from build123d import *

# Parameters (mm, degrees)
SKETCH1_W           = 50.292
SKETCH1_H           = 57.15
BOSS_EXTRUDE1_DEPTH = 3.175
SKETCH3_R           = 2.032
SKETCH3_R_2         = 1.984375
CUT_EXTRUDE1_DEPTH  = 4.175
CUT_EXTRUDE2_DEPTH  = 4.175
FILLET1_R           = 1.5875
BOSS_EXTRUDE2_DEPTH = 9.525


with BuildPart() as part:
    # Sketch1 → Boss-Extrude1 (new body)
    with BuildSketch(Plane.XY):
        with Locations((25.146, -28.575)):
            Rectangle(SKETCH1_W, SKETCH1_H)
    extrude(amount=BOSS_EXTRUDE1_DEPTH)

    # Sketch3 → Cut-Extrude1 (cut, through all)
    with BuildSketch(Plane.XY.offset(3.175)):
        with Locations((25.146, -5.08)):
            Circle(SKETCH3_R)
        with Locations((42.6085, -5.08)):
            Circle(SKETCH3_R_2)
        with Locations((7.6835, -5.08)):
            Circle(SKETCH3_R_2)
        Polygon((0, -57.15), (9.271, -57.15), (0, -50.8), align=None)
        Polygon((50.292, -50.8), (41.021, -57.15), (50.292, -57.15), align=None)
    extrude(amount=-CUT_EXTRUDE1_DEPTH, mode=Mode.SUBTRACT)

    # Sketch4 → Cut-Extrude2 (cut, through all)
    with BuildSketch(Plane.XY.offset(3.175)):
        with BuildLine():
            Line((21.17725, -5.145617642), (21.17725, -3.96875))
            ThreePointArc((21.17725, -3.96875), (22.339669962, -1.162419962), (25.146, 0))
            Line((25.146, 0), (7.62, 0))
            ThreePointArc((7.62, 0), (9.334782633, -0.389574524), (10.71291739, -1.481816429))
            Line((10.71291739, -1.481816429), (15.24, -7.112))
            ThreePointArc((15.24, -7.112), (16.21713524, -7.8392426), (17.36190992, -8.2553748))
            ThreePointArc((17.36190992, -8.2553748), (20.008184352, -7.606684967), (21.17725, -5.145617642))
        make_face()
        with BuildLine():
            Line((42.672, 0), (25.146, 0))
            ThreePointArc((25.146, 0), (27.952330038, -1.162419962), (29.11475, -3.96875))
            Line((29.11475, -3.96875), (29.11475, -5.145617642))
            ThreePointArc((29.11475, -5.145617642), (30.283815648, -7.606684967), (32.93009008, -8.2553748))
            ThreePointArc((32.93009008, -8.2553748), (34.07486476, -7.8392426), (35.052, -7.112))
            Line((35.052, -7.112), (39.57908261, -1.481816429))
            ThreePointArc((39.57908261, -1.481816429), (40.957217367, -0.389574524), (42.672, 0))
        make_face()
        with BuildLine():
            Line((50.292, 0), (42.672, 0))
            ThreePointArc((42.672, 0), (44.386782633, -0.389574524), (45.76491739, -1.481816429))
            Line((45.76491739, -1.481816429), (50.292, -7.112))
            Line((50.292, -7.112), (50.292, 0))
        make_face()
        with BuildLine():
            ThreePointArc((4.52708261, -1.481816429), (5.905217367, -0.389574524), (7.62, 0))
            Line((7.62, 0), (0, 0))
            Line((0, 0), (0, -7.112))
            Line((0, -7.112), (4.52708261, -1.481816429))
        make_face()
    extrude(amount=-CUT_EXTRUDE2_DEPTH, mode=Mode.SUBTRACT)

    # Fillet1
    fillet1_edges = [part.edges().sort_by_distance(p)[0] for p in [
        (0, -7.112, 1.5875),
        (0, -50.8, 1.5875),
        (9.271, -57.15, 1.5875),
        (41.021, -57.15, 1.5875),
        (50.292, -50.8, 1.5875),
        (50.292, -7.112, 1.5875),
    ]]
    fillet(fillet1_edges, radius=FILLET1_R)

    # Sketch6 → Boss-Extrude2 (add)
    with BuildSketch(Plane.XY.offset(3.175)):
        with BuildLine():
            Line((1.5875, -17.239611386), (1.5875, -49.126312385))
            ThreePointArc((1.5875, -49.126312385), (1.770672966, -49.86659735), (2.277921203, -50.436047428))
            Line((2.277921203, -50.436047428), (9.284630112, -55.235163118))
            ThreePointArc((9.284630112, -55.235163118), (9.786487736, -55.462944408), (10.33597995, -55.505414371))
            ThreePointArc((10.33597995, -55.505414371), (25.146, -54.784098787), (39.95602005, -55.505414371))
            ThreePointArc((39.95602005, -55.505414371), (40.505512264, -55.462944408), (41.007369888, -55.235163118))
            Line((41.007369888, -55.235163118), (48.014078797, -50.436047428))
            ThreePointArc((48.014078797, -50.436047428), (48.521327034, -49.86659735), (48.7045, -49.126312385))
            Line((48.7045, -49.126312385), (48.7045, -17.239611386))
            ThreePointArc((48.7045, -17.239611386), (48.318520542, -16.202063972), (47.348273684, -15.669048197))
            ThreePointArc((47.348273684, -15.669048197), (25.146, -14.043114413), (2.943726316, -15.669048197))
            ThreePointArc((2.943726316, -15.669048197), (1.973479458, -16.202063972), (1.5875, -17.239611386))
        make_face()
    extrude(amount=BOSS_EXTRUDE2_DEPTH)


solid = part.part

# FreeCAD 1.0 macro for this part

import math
import FreeCAD as App
import Part
import Sketcher
from FreeCAD import Vector
Q = App.Units.Quantity


def edges_at(feature, points):
    """Names of the edges that pass closest to the given points."""
    edges = feature.Shape.Edges
    near = lambda p: min(range(len(edges)), key=lambda i: edges[i].distToShape(Part.Vertex(*p))[0])
    return sorted({f"Edge{near(p) + 1}" for p in points})

doc = App.newDocument("Part")
body = doc.addObject("PartDesign::Body", "Body")

# Sketch on XY plane
sketch1 = doc.addObject("Sketcher::SketchObject", "Sketch")
body.addObject(sketch1)
sketch1.AttachmentSupport = (doc.XY_Plane, [""])
sketch1.MapMode = "FlatFace"
sketch1.addGeometry([
    Part.LineSegment(Vector(0, 0, 0), Vector(0, -57, 0)),
    Part.LineSegment(Vector(0, -57, 0), Vector(50, -57, 0)),
    Part.LineSegment(Vector(50, -57, 0), Vector(50, 0, 0)),
    Part.LineSegment(Vector(50, 0, 0), Vector(0, 0, 0)),
], False)
sketch1.addConstraint([
    Sketcher.Constraint("Coincident", 0, 2, 1, 1),
    Sketcher.Constraint("Coincident", 1, 2, 2, 1),
    Sketcher.Constraint("Coincident", 2, 2, 3, 1),
    Sketcher.Constraint("Coincident", 3, 2, 0, 1),
    Sketcher.Constraint("Vertical", 0),
    Sketcher.Constraint("Horizontal", 1),
    Sketcher.Constraint("Vertical", 2),
    Sketcher.Constraint("Horizontal", 3),
    Sketcher.Constraint("Coincident", 3, 2, -1, 1),
    Sketcher.Constraint("DistanceX", 1, 1, 1, 2, Q("1.98 in")),
    Sketcher.Constraint("DistanceY", 0, 2, 0, 1, Q("2.25 in")),
])
pad1 = doc.addObject("PartDesign::Pad", "Pad")
body.addObject(pad1)
pad1.Profile = sketch1
pad1.Length = Q("0.125 in")

# Sketch on XY plane
sketch2 = doc.addObject("Sketcher::SketchObject", "Sketch001")
body.addObject(sketch2)
sketch2.AttachmentSupport = (doc.XY_Plane, [""])
sketch2.MapMode = "FlatFace"
sketch2.AttachmentOffset = App.Placement(Vector(0, 0, 0.125 * 25.4), App.Rotation())
sketch2.addGeometry([
    Part.Circle(Vector(25.1, -5.1, 0), Vector(0, 0, 1), 2),  # 0
    Part.Circle(Vector(42.6, -5.1, 0), Vector(0, 0, 1), 2),  # 1
    Part.Circle(Vector(7.7, -5.1, 0), Vector(0, 0, 1), 2),  # 2
    Part.LineSegment(Vector(0, -57.1, 0), Vector(9.3, -57.1, 0)),  # 3
    Part.LineSegment(Vector(9.3, -57.1, 0), Vector(0, -50.8, 0)),  # 4
    Part.LineSegment(Vector(0, -50.8, 0), Vector(0, -57.1, 0)),  # 5
    Part.LineSegment(Vector(50.3, -50.8, 0), Vector(41, -57.1, 0)),  # 6
    Part.LineSegment(Vector(41, -57.1, 0), Vector(50.3, -57.1, 0)),  # 7
    Part.LineSegment(Vector(50.3, -57.1, 0), Vector(50.3, -50.8, 0)),  # 8
], False)
sketch2.addConstraint([
    Sketcher.Constraint("Coincident", 3, 2, 4, 1),
    Sketcher.Constraint("Coincident", 4, 2, 5, 1),
    Sketcher.Constraint("Coincident", 5, 2, 3, 1),
    Sketcher.Constraint("Coincident", 6, 2, 7, 1),
    Sketcher.Constraint("Coincident", 7, 2, 8, 1),
    Sketcher.Constraint("Coincident", 8, 2, 6, 1),
    Sketcher.Constraint("Horizontal", 3),
    Sketcher.Constraint("Vertical", 5),
    Sketcher.Constraint("Horizontal", 7),
    Sketcher.Constraint("Vertical", 8),
    Sketcher.Constraint("Equal", 1, 2),
    Sketcher.Constraint("PointOnObject", 4, 2, -2),
    Sketcher.Constraint("Horizontal", 0, 3, 1, 3),
    Sketcher.Constraint("Horizontal", 1, 3, 2, 3),
    Sketcher.Constraint("Horizontal", 5, 2, 6, 2),
    Sketcher.Constraint("Horizontal", 4, 2, 8, 2),
    Sketcher.Constraint("Equal", 3, 7),
    Sketcher.Constraint("Diameter", 0, Q("0.16 in")),
    Sketcher.Constraint("Diameter", 1, Q("0.15625 in")),
    Sketcher.Constraint("DistanceY", 4, 2, -1, 1, Q("2 in")),
    Sketcher.Constraint("DistanceY", 5, 2, 5, 1, Q("0.25 in")),
    Sketcher.Constraint("DistanceY", 0, 3, -1, 1, Q("0.2 in")),
    Sketcher.Constraint("DistanceX", 3, 1, 3, 2, Q("0.365 in")),
    Sketcher.Constraint("DistanceX", -1, 1, 0, 3, Q("0.99 in")),
    Sketcher.Constraint("DistanceX", -1, 1, 7, 2, Q("1.98 in")),
    Sketcher.Constraint("DistanceX", 0, 3, 1, 3, Q("0.6875 in")),
    Sketcher.Constraint("DistanceX", 2, 3, 0, 3, Q("0.6875 in")),
])
pocket1 = doc.addObject("PartDesign::Pocket", "Pocket")
body.addObject(pocket1)
pocket1.Profile = sketch2
pocket1.Type = "ThroughAll"

# Sketch on XY plane
sketch3 = doc.addObject("Sketcher::SketchObject", "Sketch002")
body.addObject(sketch3)
sketch3.AttachmentSupport = (doc.XY_Plane, [""])
sketch3.MapMode = "FlatFace"
sketch3.AttachmentOffset = App.Placement(Vector(0, 0, 0.125 * 25.4), App.Rotation())
sketch3.addGeometry([
    Part.LineSegment(Vector(21.2, -5.1, 0), Vector(21.2, -4, 0)),  # 0
    Part.ArcOfCircle(Part.Circle(Vector(25.1, -4, 0), Vector(0, 0, 1), 4), math.radians(90), math.radians(180)),  # 1
    Part.LineSegment(Vector(25.1, 0, 0), Vector(7.6, 0, 0)),  # 2
    Part.ArcOfCircle(Part.Circle(Vector(7.6, -4, 0), Vector(0, 0, 1), 4), math.radians(39), math.radians(90)),  # 3
    Part.LineSegment(Vector(10.7, -1.5, 0), Vector(15.2, -7.1, 0)),  # 4
    Part.ArcOfCircle(Part.Circle(Vector(18.2, -4.1, 0), Vector(0, 0, 1), 4.2), math.radians(-135), math.radians(-102)),  # 5
    Part.ArcOfCircle(Part.Circle(Vector(18, -5.1, 0), Vector(0, 0, 1), 3.2), math.radians(-102), math.radians(0)),  # 6
    Part.LineSegment(Vector(42.7, 0, 0), Vector(25.1, 0, 0)),  # 7
    Part.ArcOfCircle(Part.Circle(Vector(25.1, -4, 0), Vector(0, 0, 1), 4), math.radians(0), math.radians(90)),  # 8
    Part.LineSegment(Vector(29.1, -4, 0), Vector(29.1, -5.1, 0)),  # 9
    Part.ArcOfCircle(Part.Circle(Vector(32.3, -5.1, 0), Vector(0, 0, 1), 3.2), math.radians(180), math.radians(282)),  # 10
    Part.ArcOfCircle(Part.Circle(Vector(32.1, -4.1, 0), Vector(0, 0, 1), 4.2), math.radians(-78), math.radians(-45)),  # 11
    Part.LineSegment(Vector(35.1, -7.1, 0), Vector(39.6, -1.5, 0)),  # 12
    Part.ArcOfCircle(Part.Circle(Vector(42.7, -4, 0), Vector(0, 0, 1), 4), math.radians(90), math.radians(141)),  # 13
    Part.LineSegment(Vector(50.3, 0, 0), Vector(42.7, 0, 0)),  # 14
    Part.ArcOfCircle(Part.Circle(Vector(42.7, -4, 0), Vector(0, 0, 1), 4), math.radians(39), math.radians(90)),  # 15
    Part.LineSegment(Vector(45.8, -1.5, 0), Vector(50.3, -7.1, 0)),  # 16
    Part.LineSegment(Vector(50.3, -7.1, 0), Vector(50.3, 0, 0)),  # 17
    Part.ArcOfCircle(Part.Circle(Vector(7.6, -4, 0), Vector(0, 0, 1), 4), math.radians(90), math.radians(141)),  # 18
    Part.LineSegment(Vector(7.6, 0, 0), Vector(0, 0, 0)),  # 19
    Part.LineSegment(Vector(0, 0, 0), Vector(0, -7.1, 0)),  # 20
    Part.LineSegment(Vector(0, -7.1, 0), Vector(4.5, -1.5, 0)),  # 21
], False)
sketch3.addConstraint([
    Sketcher.Constraint("Tangent", 0, 2, 1, 2),
    Sketcher.Constraint("Tangent", 1, 1, 2, 1),
    Sketcher.Constraint("Tangent", 2, 2, 3, 2),
    Sketcher.Constraint("Tangent", 3, 1, 4, 1),
    Sketcher.Constraint("Coincident", 4, 2, 5, 1),
    Sketcher.Constraint("Tangent", 5, 2, 6, 1),
    Sketcher.Constraint("Tangent", 6, 2, 0, 1),
    Sketcher.Constraint("Tangent", 7, 2, 8, 2),
    Sketcher.Constraint("Tangent", 8, 1, 9, 1),
    Sketcher.Constraint("Tangent", 9, 2, 10, 1),
    Sketcher.Constraint("Tangent", 10, 2, 11, 1),
    Sketcher.Constraint("Coincident", 11, 2, 12, 1),
    Sketcher.Constraint("Tangent", 12, 2, 13, 2),
    Sketcher.Constraint("Tangent", 13, 1, 7, 1),
    Sketcher.Constraint("Tangent", 14, 2, 15, 2),
    Sketcher.Constraint("Tangent", 15, 1, 16, 1),
    Sketcher.Constraint("Coincident", 16, 2, 17, 1),
    Sketcher.Constraint("Coincident", 17, 2, 14, 1),
    Sketcher.Constraint("Tangent", 18, 1, 19, 1),
    Sketcher.Constraint("Coincident", 19, 2, 20, 1),
    Sketcher.Constraint("Coincident", 20, 2, 21, 1),
    Sketcher.Constraint("Tangent", 21, 2, 18, 2),
    Sketcher.Constraint("Vertical", 0),
    Sketcher.Constraint("Horizontal", 2),
    Sketcher.Constraint("Horizontal", 7),
    Sketcher.Constraint("Vertical", 9),
    Sketcher.Constraint("Horizontal", 14),
    Sketcher.Constraint("Vertical", 17),
    Sketcher.Constraint("Horizontal", 19),
    Sketcher.Constraint("Vertical", 20),
    Sketcher.Constraint("Coincident", 19, 2, -1, 1),
    Sketcher.Constraint("Coincident", 8, 3, 1, 3),
    Sketcher.Constraint("Coincident", 15, 3, 13, 3),
    Sketcher.Constraint("Coincident", 18, 3, 3, 3),
    Sketcher.Constraint("Equal", 1, 3),
    Sketcher.Constraint("Equal", 3, 8),
    Sketcher.Constraint("Equal", 6, 10),
    Sketcher.Constraint("Equal", 5, 11),
    Sketcher.Constraint("Equal", 8, 13),
    Sketcher.Constraint("Equal", 13, 15),
    Sketcher.Constraint("Equal", 15, 18),
    Sketcher.Constraint("Parallel", 4, 16),
    Sketcher.Constraint("Parallel", 12, 21),
    Sketcher.Constraint("Horizontal", 6, 3, 10, 3),
    Sketcher.Constraint("Horizontal", 5, 3, 11, 3),
    Sketcher.Constraint("Horizontal", 4, 2, 11, 2),
    Sketcher.Constraint("Horizontal", 3, 1, 12, 2),
    Sketcher.Constraint("Horizontal", 11, 2, 16, 2),
    Sketcher.Constraint("Horizontal", 16, 2, 20, 2),
    Sketcher.Constraint("DistanceX", 14, 2, 14, 1, Q("0.3 in")),
    Sketcher.Constraint("Radius", 1, Q("0.15625 in")),
    Sketcher.Constraint("Radius", 6, Q("0.125 in")),
    Sketcher.Constraint("DistanceX", 2, 2, 2, 1, Q("0.69 in")),
    Sketcher.Constraint("DistanceY", 17, 1, 17, 2, Q("0.28 in")),
    Sketcher.Constraint("Radius", 5, 4.19827),
    Sketcher.Constraint("DistanceY", 6, 3, 3, 1, 3.663801),
])
pocket2 = doc.addObject("PartDesign::Pocket", "Pocket001")
body.addObject(pocket2)
pocket2.Profile = sketch3
pocket2.Type = "ThroughAll"
doc.recompute()

fillet = doc.addObject("PartDesign::Fillet", "Fillet")
body.addObject(fillet)
fillet.Base = (pocket2, edges_at(pocket2, [
    (0, -7.112, 1.587),
    (0, -50.8, 1.587),
    (9.271, -57.15, 1.587),
    (41.021, -57.15, 1.587),
    (50.292, -50.8, 1.587),
    (50.292, -7.112, 1.587),
]))
fillet.Radius = Q("0.0625 in")

# Sketch on XY plane
sketch4 = doc.addObject("Sketcher::SketchObject", "Sketch003")
body.addObject(sketch4)
sketch4.AttachmentSupport = (doc.XY_Plane, [""])
sketch4.MapMode = "FlatFace"
sketch4.AttachmentOffset = App.Placement(Vector(0, 0, 0.125 * 25.4), App.Rotation())
sketch4.addGeometry([
    Part.LineSegment(Vector(1.6, -17.2, 0), Vector(1.6, -49.1, 0)),  # 0
    Part.ArcOfCircle(Part.Circle(Vector(3.2, -49.1, 0), Vector(0, 0, 1), 1.6), math.radians(-180), math.radians(-124)),  # 1
    Part.LineSegment(Vector(2.3, -50.4, 0), Vector(9.3, -55.2, 0)),  # 2
    Part.ArcOfCircle(Part.Circle(Vector(10.2, -53.9, 0), Vector(0, 0, 1), 1.6), math.radians(-124), math.radians(-84)),  # 3
    Part.ArcOfCircle(Part.Circle(Vector(25.1, -207.2, 0), Vector(0, 0, 1), 152.4), math.radians(84.42), math.radians(95.58)),  # 4
    Part.ArcOfCircle(Part.Circle(Vector(40.1, -53.9, 0), Vector(0, 0, 1), 1.6), math.radians(-96), math.radians(-56)),  # 5
    Part.LineSegment(Vector(41, -55.2, 0), Vector(48, -50.4, 0)),  # 6
    Part.ArcOfCircle(Part.Circle(Vector(47.1, -49.1, 0), Vector(0, 0, 1), 1.6), math.radians(-56), math.radians(0)),  # 7
    Part.LineSegment(Vector(48.7, -49.1, 0), Vector(48.7, -17.2, 0)),  # 8
    Part.ArcOfCircle(Part.Circle(Vector(47.1, -17.2, 0), Vector(0, 0, 1), 1.6), math.radians(0), math.radians(82)),  # 9
    Part.ArcOfCircle(Part.Circle(Vector(25.1, -166.4, 0), Vector(0, 0, 1), 152.4), math.radians(81.62), math.radians(98.38)),  # 10
    Part.ArcOfCircle(Part.Circle(Vector(3.2, -17.2, 0), Vector(0, 0, 1), 1.6), math.radians(98), math.radians(180)),  # 11
], False)
sketch4.addConstraint([
    Sketcher.Constraint("Tangent", 0, 2, 1, 1),
    Sketcher.Constraint("Tangent", 1, 2, 2, 1),
    Sketcher.Constraint("Tangent", 2, 2, 3, 1),
    Sketcher.Constraint("Tangent", 3, 2, 4, 2),
    Sketcher.Constraint("Tangent", 4, 1, 5, 1),
    Sketcher.Constraint("Tangent", 5, 2, 6, 1),
    Sketcher.Constraint("Tangent", 6, 2, 7, 1),
    Sketcher.Constraint("Tangent", 7, 2, 8, 1),
    Sketcher.Constraint("Tangent", 8, 2, 9, 1),
    Sketcher.Constraint("Tangent", 9, 2, 10, 1),
    Sketcher.Constraint("Tangent", 10, 2, 11, 1),
    Sketcher.Constraint("Tangent", 11, 2, 0, 1),
    Sketcher.Constraint("Vertical", 0),
    Sketcher.Constraint("Vertical", 8),
    Sketcher.Constraint("Equal", 1, 3),
    Sketcher.Constraint("Equal", 3, 5),
    Sketcher.Constraint("Equal", 5, 7),
    Sketcher.Constraint("Equal", 7, 9),
    Sketcher.Constraint("Equal", 4, 10),
    Sketcher.Constraint("Equal", 9, 11),
    Sketcher.Constraint("Horizontal", 3, 3, 5, 3),
    Sketcher.Constraint("Horizontal", 1, 3, 7, 3),
    Sketcher.Constraint("Horizontal", 9, 3, 11, 3),
    Sketcher.Constraint("Horizontal", 2, 2, 5, 2),
    Sketcher.Constraint("Radius", 4, Q("6 in")),
    Sketcher.Constraint("Radius", 1, Q("0.0625 in")),
    Sketcher.Constraint("DistanceX", -1, 1, 4, 3, Q("0.99 in")),
    Sketcher.Constraint("DistanceX", 1, 3, 7, 3, Q("1.73 in")),
    Sketcher.Constraint("DistanceY", 0, 2, 0, 1, 31.886701),
    Sketcher.Constraint("DistanceY", 4, 3, -1, 1, 207.184099),
    Sketcher.Constraint("DistanceY", 3, 2, 1, 3, 6.379102),
    Sketcher.Constraint("DistanceY", 6, 2, 9, 2, 34.766999),
])
pad2 = doc.addObject("PartDesign::Pad", "Pad001")
body.addObject(pad2)
pad2.Profile = sketch4
pad2.Length = Q("0.375 in")

doc.recompute()
